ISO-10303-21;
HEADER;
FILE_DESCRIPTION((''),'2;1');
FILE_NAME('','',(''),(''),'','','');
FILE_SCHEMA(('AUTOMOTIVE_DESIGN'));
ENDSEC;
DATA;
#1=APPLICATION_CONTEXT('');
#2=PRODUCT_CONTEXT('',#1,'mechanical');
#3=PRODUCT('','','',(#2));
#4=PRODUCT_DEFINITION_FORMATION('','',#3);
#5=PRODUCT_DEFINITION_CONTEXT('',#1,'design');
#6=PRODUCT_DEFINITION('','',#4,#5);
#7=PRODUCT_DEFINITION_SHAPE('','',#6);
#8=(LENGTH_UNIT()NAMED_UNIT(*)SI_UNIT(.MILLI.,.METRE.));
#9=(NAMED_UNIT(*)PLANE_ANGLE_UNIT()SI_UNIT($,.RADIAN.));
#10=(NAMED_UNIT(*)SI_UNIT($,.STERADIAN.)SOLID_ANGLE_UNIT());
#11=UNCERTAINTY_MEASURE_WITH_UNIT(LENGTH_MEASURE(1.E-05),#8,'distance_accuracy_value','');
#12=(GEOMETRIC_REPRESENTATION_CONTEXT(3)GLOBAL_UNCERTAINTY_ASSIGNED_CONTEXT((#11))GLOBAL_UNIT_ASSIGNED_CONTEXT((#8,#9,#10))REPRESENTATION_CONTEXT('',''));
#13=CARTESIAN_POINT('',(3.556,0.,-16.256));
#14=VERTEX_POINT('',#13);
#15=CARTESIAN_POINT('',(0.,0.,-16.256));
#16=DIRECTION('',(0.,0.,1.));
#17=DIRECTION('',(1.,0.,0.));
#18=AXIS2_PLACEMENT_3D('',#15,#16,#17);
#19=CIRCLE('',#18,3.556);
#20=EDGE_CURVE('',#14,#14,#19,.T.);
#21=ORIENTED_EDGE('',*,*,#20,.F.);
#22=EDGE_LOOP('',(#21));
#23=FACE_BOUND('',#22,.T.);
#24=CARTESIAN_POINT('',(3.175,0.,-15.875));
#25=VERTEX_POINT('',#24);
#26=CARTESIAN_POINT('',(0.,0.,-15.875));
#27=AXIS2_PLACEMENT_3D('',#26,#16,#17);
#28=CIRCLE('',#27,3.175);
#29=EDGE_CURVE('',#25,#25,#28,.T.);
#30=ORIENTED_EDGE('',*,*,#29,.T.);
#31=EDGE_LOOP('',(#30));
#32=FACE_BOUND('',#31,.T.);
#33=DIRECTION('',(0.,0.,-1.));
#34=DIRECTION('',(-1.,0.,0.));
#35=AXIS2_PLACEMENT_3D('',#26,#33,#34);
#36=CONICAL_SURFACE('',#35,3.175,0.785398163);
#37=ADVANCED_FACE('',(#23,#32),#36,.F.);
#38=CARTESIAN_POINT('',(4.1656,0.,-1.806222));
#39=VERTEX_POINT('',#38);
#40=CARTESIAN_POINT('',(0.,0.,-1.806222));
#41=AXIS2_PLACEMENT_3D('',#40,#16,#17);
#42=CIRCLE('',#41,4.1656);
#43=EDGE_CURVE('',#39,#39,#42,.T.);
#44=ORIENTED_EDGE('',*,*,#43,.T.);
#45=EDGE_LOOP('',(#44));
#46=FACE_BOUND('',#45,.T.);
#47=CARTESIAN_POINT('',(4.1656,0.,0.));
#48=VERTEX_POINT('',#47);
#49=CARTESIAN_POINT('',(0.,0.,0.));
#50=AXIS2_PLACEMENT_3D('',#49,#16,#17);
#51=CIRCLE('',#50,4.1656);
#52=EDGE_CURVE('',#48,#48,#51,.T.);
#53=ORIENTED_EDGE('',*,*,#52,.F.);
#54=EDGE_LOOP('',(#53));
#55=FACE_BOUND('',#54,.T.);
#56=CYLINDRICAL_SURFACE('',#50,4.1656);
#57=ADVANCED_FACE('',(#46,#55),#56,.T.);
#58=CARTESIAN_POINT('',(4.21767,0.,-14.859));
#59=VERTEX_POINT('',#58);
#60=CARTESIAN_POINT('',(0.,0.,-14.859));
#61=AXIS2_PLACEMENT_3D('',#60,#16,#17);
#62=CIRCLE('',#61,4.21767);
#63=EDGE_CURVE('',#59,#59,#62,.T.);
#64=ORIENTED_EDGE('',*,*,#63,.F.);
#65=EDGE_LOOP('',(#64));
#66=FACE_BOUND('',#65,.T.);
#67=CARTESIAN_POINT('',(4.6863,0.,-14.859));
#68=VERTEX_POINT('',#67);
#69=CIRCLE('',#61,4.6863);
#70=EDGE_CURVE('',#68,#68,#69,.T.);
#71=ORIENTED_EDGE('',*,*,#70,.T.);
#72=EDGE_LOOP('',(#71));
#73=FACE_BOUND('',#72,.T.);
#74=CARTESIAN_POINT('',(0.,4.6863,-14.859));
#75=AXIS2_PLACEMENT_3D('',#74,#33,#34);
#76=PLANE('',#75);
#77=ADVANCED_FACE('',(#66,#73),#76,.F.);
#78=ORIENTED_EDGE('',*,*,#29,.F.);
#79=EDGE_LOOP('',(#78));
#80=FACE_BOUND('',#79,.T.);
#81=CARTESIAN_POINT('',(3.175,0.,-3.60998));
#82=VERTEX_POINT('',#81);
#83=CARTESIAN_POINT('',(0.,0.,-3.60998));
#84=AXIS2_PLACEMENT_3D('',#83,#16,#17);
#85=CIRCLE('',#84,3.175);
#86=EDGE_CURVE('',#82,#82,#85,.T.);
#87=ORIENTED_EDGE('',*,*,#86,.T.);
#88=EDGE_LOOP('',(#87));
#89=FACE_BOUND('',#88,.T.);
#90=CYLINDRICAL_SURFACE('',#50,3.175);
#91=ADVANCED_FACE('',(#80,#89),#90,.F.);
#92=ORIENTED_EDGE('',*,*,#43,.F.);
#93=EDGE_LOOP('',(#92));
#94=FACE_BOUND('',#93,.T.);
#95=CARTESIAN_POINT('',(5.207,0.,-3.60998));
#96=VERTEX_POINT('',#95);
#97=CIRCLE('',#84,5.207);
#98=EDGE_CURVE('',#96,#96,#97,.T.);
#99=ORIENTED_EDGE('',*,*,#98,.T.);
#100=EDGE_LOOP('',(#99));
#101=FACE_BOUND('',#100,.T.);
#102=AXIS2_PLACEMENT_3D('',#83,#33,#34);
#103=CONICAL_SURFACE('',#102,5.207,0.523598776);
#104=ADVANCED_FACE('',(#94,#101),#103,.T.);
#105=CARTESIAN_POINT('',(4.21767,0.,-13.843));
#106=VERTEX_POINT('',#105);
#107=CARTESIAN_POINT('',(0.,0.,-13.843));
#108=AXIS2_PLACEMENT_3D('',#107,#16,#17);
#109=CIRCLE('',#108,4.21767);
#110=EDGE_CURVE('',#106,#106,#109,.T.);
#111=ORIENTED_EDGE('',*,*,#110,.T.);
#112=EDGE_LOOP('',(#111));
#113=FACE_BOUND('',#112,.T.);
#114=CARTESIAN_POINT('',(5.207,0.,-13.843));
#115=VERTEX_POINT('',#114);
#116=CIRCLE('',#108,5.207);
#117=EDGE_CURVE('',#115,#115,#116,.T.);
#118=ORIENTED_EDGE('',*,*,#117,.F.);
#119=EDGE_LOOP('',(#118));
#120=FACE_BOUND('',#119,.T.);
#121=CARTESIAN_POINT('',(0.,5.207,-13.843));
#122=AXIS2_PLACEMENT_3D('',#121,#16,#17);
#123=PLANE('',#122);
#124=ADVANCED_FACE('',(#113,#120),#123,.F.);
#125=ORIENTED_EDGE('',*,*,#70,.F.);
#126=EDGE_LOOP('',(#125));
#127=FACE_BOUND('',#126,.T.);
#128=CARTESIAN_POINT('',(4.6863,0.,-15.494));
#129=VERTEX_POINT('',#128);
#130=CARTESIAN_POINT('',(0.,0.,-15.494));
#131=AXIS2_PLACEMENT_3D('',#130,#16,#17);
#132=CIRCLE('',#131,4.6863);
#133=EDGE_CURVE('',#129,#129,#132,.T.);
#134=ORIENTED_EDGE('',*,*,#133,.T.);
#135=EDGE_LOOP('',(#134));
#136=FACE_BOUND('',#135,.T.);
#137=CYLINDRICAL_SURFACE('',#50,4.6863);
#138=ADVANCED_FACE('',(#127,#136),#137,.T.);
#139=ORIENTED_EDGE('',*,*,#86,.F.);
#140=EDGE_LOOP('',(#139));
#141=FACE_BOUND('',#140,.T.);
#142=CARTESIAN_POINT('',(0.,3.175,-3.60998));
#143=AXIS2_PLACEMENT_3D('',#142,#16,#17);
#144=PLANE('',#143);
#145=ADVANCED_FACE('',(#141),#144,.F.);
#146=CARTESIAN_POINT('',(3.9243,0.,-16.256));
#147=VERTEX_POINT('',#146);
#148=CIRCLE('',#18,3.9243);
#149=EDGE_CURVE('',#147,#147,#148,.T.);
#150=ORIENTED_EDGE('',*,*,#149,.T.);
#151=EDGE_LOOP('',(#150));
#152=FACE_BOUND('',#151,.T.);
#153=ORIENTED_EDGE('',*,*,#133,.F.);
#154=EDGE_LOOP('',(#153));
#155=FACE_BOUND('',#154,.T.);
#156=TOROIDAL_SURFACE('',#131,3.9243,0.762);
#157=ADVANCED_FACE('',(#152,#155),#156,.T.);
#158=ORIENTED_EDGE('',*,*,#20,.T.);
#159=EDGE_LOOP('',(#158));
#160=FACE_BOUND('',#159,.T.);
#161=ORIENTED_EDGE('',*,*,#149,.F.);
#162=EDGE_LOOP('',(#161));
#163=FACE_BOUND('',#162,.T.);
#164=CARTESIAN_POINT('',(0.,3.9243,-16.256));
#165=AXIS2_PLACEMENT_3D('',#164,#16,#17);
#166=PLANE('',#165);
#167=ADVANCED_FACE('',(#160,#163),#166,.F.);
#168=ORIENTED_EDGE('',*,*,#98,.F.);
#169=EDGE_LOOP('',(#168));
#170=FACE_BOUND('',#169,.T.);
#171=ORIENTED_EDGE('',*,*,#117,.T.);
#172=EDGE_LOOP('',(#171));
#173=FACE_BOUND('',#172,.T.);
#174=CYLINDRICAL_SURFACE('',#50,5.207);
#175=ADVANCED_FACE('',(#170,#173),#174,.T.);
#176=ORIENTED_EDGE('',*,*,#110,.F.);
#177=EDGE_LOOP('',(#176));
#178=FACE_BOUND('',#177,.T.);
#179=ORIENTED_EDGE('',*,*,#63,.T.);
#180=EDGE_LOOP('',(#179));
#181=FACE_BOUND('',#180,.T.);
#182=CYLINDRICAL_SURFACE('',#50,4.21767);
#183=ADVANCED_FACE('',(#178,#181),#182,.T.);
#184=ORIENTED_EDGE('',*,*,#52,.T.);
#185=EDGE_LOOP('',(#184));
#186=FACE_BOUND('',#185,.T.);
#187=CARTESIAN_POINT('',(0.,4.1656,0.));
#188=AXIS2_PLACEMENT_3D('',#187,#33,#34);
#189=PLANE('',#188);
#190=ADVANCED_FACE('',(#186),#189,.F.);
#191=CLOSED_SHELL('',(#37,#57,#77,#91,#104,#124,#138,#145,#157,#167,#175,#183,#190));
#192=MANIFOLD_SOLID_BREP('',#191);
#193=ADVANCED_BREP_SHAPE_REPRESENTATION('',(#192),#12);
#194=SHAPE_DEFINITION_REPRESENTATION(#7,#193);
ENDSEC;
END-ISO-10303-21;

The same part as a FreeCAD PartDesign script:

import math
import FreeCAD as App
import Part
import Sketcher
Q = App.Units.Quantity

doc = App.newDocument("Part")
body = doc.addObject("PartDesign::Body", "Body")

# Sketch on YZ plane
sketch1 = body.newObject("Sketcher::SketchObject", "Sketch")
sketch1.AttachmentSupport = (doc.getObject("YZ_Plane"), [""])
sketch1.MapMode = "FlatFace"
sketch1.addGeometry([
    Part.LineSegment(App.Vector(4.69, -15.49, 0), App.Vector(4.69, -14.86, 0)),  # 0
    Part.LineSegment(App.Vector(4.69, -14.86, 0), App.Vector(4.22, -14.86, 0)),  # 1
    Part.LineSegment(App.Vector(4.22, -14.86, 0), App.Vector(4.22, -13.84, 0)),  # 2
    Part.LineSegment(App.Vector(4.22, -13.84, 0), App.Vector(5.21, -13.84, 0)),  # 3
    Part.LineSegment(App.Vector(5.21, -13.84, 0), App.Vector(5.21, -3.61, 0)),  # 4
    Part.LineSegment(App.Vector(5.21, -3.61, 0), App.Vector(4.17, -1.81, 0)),  # 5
    Part.LineSegment(App.Vector(4.17, -1.81, 0), App.Vector(4.17, 0, 0)),  # 6
    Part.LineSegment(App.Vector(4.17, 0, 0), App.Vector(0, 0, 0)),  # 7
    Part.LineSegment(App.Vector(0, 0, 0), App.Vector(0, -3.61, 0)),  # 8
    Part.LineSegment(App.Vector(0, -3.61, 0), App.Vector(3.17, -3.61, 0)),  # 9
    Part.LineSegment(App.Vector(3.17, -3.61, 0), App.Vector(3.17, -15.88, 0)),  # 10
    Part.LineSegment(App.Vector(3.17, -15.88, 0), App.Vector(3.56, -16.26, 0)),  # 11
    Part.LineSegment(App.Vector(3.56, -16.26, 0), App.Vector(3.92, -16.26, 0)),  # 12
    Part.ArcOfCircle(Part.Circle(App.Vector(3.92, -15.49, 0), App.Vector(0, 0, 1), 0.76), math.radians(-90), math.radians(0)),  # 13
], False)
sketch1.addConstraint([
    Sketcher.Constraint("Coincident", 0, 2, 1, 1),
    Sketcher.Constraint("Coincident", 1, 2, 2, 1),
    Sketcher.Constraint("Coincident", 2, 2, 3, 1),
    Sketcher.Constraint("Coincident", 3, 2, 4, 1),
    Sketcher.Constraint("Coincident", 4, 2, 5, 1),
    Sketcher.Constraint("Coincident", 5, 2, 6, 1),
    Sketcher.Constraint("Coincident", 6, 2, 7, 1),
    Sketcher.Constraint("Coincident", 7, 2, 8, 1),
    Sketcher.Constraint("Coincident", 8, 2, 9, 1),
    Sketcher.Constraint("Coincident", 9, 2, 10, 1),
    Sketcher.Constraint("Coincident", 10, 2, 11, 1),
    Sketcher.Constraint("Coincident", 11, 2, 12, 1),
    Sketcher.Constraint("Tangent", 12, 2, 13, 1),
    Sketcher.Constraint("Tangent", 13, 2, 0, 1),
    Sketcher.Constraint("Vertical", 0),
    Sketcher.Constraint("Horizontal", 1),
    Sketcher.Constraint("Vertical", 2),
    Sketcher.Constraint("Horizontal", 3),
    Sketcher.Constraint("Vertical", 4),
    Sketcher.Constraint("Vertical", 6),
    Sketcher.Constraint("Horizontal", 7),
    Sketcher.Constraint("Vertical", 8),
    Sketcher.Constraint("Horizontal", 9),
    Sketcher.Constraint("Vertical", 10),
    Sketcher.Constraint("Horizontal", 12),
    Sketcher.Constraint("Coincident", 7, 2, -1, 1),
    Sketcher.Constraint("Horizontal", 4, 2, 8, 2),
    Sketcher.Constraint("Radius", 13, Q("0.03 in")),
    Sketcher.Constraint("Angle", 5, Q("120 deg")),
    Sketcher.Constraint("Angle", 11, Q("-45 deg")),
    Sketcher.Constraint("DistanceY", 2, 1, 2, 2, Q("0.04 in")),
    Sketcher.Constraint("DistanceX", 7, 2, 7, 1, Q("0.164 in")),
    Sketcher.Constraint("DistanceX", 9, 1, 9, 2, Q("0.125 in")),
    Sketcher.Constraint("DistanceY", 0, 1, 0, 2, Q("0.025 in")),
    Sketcher.Constraint("DistanceY", 13, 3, -1, 1, Q("0.61 in")),
    Sketcher.Constraint("DistanceX", -1, 1, 11, 2, Q("0.14 in")),
    Sketcher.Constraint("DistanceX", 9, 2, 4, 2, Q("0.08 in")),
    Sketcher.Constraint("DistanceX", 12, 1, 12, 2, Q("0.0145 in")),
    Sketcher.Constraint("DistanceX", 1, 2, 1, 1, 0.46863),
    Sketcher.Constraint("DistanceY", 4, 1, 4, 2, 10.23302),
])
revolution = body.newObject("PartDesign::Revolution", "Revolution")
revolution.Profile = sketch1
revolution.ReferenceAxis = (sketch1, ["V_Axis"])
revolution.Angle = 360

doc.recompute()
